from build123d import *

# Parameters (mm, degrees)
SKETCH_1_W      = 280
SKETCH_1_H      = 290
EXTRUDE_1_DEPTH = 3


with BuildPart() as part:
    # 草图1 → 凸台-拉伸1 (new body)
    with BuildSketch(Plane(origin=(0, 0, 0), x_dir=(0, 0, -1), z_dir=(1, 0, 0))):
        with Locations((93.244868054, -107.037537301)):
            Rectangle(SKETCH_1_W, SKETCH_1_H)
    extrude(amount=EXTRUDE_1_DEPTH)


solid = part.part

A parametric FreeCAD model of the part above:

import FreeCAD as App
import Part
import Sketcher
from FreeCAD import Vector
Q = App.Units.Quantity

doc = App.newDocument("Part")
body = doc.addObject("PartDesign::Body", "Body")

sketch1 = body.newObject("Sketcher::SketchObject", "Sketch")
sketch1.AttachmentSupport = (doc.getObject("YZ_Plane"), [""])
sketch1.MapMode = "FlatFace"
sketch1.addGeometry([
    Part.LineSegment(Vector(37.962463, 46.755132, 0), Vector(-252.037537, 46.755132, 0)),
    Part.LineSegment(Vector(-252.037537, 46.755132, 0), Vector(-252.037537, -233.244868, 0)),
    Part.LineSegment(Vector(-252.037537, -233.244868, 0), Vector(37.962463, -233.244868, 0)),
    Part.LineSegment(Vector(37.962463, -233.244868, 0), Vector(37.962463, 46.755132, 0)),
], False)
sketch1.addConstraint([
    Sketcher.Constraint("Coincident", 0, 2, 1, 1),
    Sketcher.Constraint("Coincident", 1, 2, 2, 1),
    Sketcher.Constraint("Coincident", 2, 2, 3, 1),
    Sketcher.Constraint("Coincident", 3, 2, 0, 1),
    Sketcher.Constraint("Horizontal", 0),
    Sketcher.Constraint("Vertical", 1),
    Sketcher.Constraint("Horizontal", 2),
    Sketcher.Constraint("Vertical", 3),
    Sketcher.Constraint("DistanceX", 0, 2, 0, 1, Q("290 mm")),
    Sketcher.Constraint("DistanceY", 1, 2, 1, 1, Q("280 mm")),
    Sketcher.Constraint("DistanceY", -1, 1, 0, 2, Q("46.755132 mm")),
    Sketcher.Constraint("DistanceX", 0, 2, -1, 1, Q("252.037537 mm")),
])
pad1 = body.newObject("PartDesign::Pad", "Pad")
pad1.Profile = sketch1
pad1.Length = 3

doc.recompute()
